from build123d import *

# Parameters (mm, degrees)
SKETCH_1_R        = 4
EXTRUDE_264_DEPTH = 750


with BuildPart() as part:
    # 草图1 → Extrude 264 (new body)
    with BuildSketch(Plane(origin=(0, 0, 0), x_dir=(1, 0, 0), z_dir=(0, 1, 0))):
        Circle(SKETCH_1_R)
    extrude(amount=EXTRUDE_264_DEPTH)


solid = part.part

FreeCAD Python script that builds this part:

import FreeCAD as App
import Part
import Sketcher

V = App.Vector
Q = App.Units.Quantity

doc = App.newDocument("Part")
body = doc.addObject("PartDesign::Body", "Body")

sketch1 = body.newObject("Sketcher::SketchObject", "Sketch")
sketch1.AttachmentSupport = (doc.getObject("XZ_Plane"), [""])
sketch1.MapMode = "FlatFace"
sketch1.addGeometry(Part.Circle(V(0, 0, 0), V(0, 0, 1), 4), False)
sketch1.addConstraint([
    Sketcher.Constraint("Coincident", 0, 3, -1, 1),
    Sketcher.Constraint("Diameter", 0, Q("8 mm")),
])
pad1 = body.newObject("PartDesign::Pad", "Pad")
pad1.Profile = sketch1
pad1.Length = 750
pad1.Reversed = True

doc.recompute()
